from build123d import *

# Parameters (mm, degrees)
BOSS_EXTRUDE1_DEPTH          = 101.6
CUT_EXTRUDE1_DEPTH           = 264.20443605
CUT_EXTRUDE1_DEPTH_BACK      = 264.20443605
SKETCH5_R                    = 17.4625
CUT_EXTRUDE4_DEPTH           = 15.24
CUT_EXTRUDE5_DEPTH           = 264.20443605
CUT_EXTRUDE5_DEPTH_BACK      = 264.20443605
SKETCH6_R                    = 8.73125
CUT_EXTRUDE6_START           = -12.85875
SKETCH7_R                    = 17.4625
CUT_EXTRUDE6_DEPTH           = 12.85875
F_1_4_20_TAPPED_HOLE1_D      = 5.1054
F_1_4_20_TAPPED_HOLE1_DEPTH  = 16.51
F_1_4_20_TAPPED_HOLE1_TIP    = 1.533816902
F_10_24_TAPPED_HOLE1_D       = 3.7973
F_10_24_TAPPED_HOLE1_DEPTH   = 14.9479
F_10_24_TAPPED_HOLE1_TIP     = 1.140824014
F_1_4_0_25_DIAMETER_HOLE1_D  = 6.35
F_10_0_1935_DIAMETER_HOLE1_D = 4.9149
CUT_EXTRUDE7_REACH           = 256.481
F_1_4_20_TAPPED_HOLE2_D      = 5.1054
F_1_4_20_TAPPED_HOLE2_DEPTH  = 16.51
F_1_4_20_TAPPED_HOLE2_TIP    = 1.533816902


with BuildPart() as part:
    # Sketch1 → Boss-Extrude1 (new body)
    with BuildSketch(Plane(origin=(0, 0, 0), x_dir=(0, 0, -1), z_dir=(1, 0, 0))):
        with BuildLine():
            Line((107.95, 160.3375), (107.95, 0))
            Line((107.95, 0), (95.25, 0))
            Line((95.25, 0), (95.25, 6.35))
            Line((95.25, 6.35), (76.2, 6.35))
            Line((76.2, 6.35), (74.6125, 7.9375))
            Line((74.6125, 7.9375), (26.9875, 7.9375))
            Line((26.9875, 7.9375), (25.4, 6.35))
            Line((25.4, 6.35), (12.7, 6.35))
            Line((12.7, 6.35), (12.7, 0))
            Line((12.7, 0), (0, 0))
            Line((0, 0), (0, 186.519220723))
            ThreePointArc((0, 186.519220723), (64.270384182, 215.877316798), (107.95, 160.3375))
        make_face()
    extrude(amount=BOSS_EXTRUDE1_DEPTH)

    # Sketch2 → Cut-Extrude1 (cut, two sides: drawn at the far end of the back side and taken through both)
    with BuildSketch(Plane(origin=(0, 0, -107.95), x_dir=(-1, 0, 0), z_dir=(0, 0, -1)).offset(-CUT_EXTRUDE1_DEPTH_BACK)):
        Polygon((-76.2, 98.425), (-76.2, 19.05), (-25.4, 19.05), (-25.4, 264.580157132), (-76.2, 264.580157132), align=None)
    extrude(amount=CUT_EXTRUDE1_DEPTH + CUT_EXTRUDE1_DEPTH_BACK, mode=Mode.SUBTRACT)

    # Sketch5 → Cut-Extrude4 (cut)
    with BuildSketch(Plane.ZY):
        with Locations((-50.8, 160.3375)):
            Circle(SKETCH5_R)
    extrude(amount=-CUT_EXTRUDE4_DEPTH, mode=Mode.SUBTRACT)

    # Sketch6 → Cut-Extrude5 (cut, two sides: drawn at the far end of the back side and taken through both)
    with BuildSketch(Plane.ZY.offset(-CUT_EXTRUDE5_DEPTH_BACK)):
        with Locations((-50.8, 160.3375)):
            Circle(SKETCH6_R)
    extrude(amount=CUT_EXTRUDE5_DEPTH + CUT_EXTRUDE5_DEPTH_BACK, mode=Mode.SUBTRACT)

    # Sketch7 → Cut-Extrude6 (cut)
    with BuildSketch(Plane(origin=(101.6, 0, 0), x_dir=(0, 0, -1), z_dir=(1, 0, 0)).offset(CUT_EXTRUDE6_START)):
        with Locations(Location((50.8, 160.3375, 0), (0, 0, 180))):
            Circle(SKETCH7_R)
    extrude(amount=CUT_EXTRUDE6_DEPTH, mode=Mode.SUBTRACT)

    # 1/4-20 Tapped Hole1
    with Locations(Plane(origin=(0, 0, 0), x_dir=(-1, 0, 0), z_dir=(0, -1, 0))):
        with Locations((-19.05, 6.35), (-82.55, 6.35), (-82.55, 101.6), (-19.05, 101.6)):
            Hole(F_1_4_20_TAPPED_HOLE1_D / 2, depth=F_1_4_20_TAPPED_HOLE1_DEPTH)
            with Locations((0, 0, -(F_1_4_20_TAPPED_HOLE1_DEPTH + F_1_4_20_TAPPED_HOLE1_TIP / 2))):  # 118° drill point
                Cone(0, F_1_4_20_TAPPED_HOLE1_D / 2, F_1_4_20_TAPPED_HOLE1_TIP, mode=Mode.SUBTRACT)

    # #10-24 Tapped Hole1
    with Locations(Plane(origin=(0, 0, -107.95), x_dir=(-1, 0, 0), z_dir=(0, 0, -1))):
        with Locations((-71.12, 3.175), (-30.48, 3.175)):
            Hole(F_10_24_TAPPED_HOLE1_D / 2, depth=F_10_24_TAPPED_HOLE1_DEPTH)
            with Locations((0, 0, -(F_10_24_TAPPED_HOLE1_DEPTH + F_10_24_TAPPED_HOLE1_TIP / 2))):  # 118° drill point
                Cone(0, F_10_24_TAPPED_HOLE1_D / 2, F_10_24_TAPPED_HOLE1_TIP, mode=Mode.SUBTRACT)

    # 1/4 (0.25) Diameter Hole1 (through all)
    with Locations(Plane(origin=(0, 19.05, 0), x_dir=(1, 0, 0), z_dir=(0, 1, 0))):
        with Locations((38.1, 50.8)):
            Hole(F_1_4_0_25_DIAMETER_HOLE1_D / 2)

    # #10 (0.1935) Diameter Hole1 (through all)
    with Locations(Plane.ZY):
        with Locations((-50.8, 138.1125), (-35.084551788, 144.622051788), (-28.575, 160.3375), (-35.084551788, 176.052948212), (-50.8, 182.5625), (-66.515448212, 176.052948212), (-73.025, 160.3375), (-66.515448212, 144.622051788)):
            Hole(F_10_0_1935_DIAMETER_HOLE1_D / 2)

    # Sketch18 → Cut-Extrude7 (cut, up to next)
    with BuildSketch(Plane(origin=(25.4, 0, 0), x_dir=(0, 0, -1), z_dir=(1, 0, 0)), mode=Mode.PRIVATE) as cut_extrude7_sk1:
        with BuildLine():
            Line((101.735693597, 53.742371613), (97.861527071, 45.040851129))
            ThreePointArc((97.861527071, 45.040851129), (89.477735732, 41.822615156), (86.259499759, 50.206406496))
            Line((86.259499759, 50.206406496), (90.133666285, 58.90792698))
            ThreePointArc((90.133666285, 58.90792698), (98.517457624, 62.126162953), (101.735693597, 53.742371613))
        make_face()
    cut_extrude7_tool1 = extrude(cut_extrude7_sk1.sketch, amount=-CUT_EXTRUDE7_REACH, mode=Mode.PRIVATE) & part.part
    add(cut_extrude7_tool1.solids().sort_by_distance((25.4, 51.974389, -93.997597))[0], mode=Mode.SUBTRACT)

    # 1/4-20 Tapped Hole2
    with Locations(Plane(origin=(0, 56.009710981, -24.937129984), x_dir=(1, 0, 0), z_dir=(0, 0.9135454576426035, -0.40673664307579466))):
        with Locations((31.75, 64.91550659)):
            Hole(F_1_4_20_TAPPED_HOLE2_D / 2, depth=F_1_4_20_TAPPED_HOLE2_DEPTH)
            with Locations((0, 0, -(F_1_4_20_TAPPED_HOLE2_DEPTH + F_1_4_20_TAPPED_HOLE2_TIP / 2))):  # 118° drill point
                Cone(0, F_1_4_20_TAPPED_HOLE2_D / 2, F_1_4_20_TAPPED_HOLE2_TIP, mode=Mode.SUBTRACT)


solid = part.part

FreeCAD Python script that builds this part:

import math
import FreeCAD as App
import Part
import Sketcher
Q = App.Units.Quantity

doc = App.newDocument("Part")
params = doc.addObject("Spreadsheet::Sheet", "Params")
for row, (alias, value) in enumerate([
    ("sketch1_radius", "2.25 in"),
    ("sketch1_height", "0.5 in"),
    ("sketch1_width", "0.25 in"),
    ("sketch1_width2", "6.3125 in"),
    ("pad1_length", "4 in"),
    ("sketch2_width", "2 in"),
    ("sketch3_diameter", "1.375 in"),
    ("pocket2_length", "0.6 in"),
    ("sketch4_diameter", "0.6875 in"),
    ("sketch5_diameter", "1.375 in"),
    ("pocket4_length", "12.85875 mm"),
    ("sketch6_diameter", "0.201 in"),
    ("hole_diameter", "0.201 in"),
    ("hole_depth", "0.65 in"),
    ("hole2_diameter", "0.1495 in"),
    ("hole2_depth", "0.5885 in"),
    ("sketch8_diameter", "0.25 in"),
    ("hole3_diameter", "0.25 in"),
    ("hole4_diameter", "0.1935 in"),
    ("sketch10_radius", "0.25 in"),
    ("sketch10_length", "0.375 in"),
    ("sketch11_diameter", "0.201 in"),
    ("hole5_diameter", "0.201 in"),
    ("hole5_depth", "0.65 in"),
], start=1):
    params.set(f"A{row}", alias)
    params.set(f"B{row}", "=" + value)
    params.setAlias(f"B{row}", alias)

body = doc.addObject("PartDesign::Body", "Body")

sketch1 = body.newObject("Sketcher::SketchObject", "Sketch")
sketch1.AttachmentSupport = (doc.getObject("YZ_Plane"), [""])
sketch1.MapMode = "FlatFace"
sketch1.addGeometry([
    Part.LineSegment(App.Vector(0, -108, 0), App.Vector(160.3, -108, 0)),
    Part.ArcOfCircle(Part.Circle(App.Vector(160.3, -50.8, 0), App.Vector(0, 0, 1), 57.1), math.radians(-90), math.radians(63)),
    Part.LineSegment(App.Vector(186.5, 0, 0), App.Vector(0, 0, 0)),
    Part.LineSegment(App.Vector(0, 0, 0), App.Vector(0, -12.7, 0)),
    Part.LineSegment(App.Vector(0, -12.7, 0), App.Vector(6.3, -12.7, 0)),
    Part.LineSegment(App.Vector(6.3, -12.7, 0), App.Vector(6.3, -25.4, 0)),
    Part.LineSegment(App.Vector(6.3, -25.4, 0), App.Vector(7.9, -27, 0)),
    Part.LineSegment(App.Vector(7.9, -27, 0), App.Vector(7.9, -74.6, 0)),
    Part.LineSegment(App.Vector(7.9, -74.6, 0), App.Vector(6.3, -76.2, 0)),
    Part.LineSegment(App.Vector(6.3, -76.2, 0), App.Vector(6.3, -95.2, 0)),
    Part.LineSegment(App.Vector(6.3, -95.2, 0), App.Vector(0, -95.2, 0)),
    Part.LineSegment(App.Vector(0, -95.2, 0), App.Vector(0, -108, 0)),
], False)
sketch1.addConstraint([
    Sketcher.Constraint("Tangent", 0, 2, 1, 1),
    Sketcher.Constraint("Coincident", 1, 2, 2, 1),
    Sketcher.Constraint("Coincident", 2, 2, 3, 1),
    Sketcher.Constraint("Coincident", 3, 2, 4, 1),
    Sketcher.Constraint("Coincident", 4, 2, 5, 1),
    Sketcher.Constraint("Coincident", 5, 2, 6, 1),
    Sketcher.Constraint("Coincident", 6, 2, 7, 1),
    Sketcher.Constraint("Coincident", 7, 2, 8, 1),
    Sketcher.Constraint("Coincident", 8, 2, 9, 1),
    Sketcher.Constraint("Coincident", 9, 2, 10, 1),
    Sketcher.Constraint("Coincident", 10, 2, 11, 1),
    Sketcher.Constraint("Coincident", 11, 2, 0, 1),
    Sketcher.Constraint("Horizontal", 0),
    Sketcher.Constraint("Horizontal", 2),
    Sketcher.Constraint("Vertical", 3),
    Sketcher.Constraint("Horizontal", 4),
    Sketcher.Constraint("Vertical", 5),
    Sketcher.Constraint("Vertical", 7),
    Sketcher.Constraint("Vertical", 9),
    Sketcher.Constraint("Horizontal", 10),
    Sketcher.Constraint("Vertical", 11),
    Sketcher.Constraint("Coincident", 2, 2, -1, 1),
    Sketcher.Constraint("PointOnObject", 10, 2, -2),
    Sketcher.Constraint("Perpendicular", 6, 8),
    Sketcher.Constraint("Vertical", 5, 2, 8, 2),
    Sketcher.Constraint("Equal", 3, 5),
    Sketcher.Constraint("Equal", 5, 11),
    Sketcher.Constraint("Equal", 6, 8),
    Sketcher.Constraint("Radius", 1, Q("2.25 in")),
    Sketcher.Constraint("DistanceY", 3, 2, 3, 1, Q("0.5 in")),
    Sketcher.Constraint("DistanceY", 1, 3, -1, 1, Q("2 in")),
    Sketcher.Constraint("DistanceY", 8, 2, -1, 1, Q("3 in")),
    Sketcher.Constraint("DistanceX", 6, 2, 1, 3, Q("6 in")),
    Sketcher.Constraint("DistanceX", 4, 1, 4, 2, Q("0.25 in")),
    Sketcher.Constraint("DistanceX", 0, 1, 0, 2, Q("6.3125 in")),
])
sketch1.setExpression("Constraints[28]", "Params.sketch1_radius")
sketch1.setExpression("Constraints[29]", "Params.sketch1_height")
sketch1.setExpression("Constraints[33]", "Params.sketch1_width")
sketch1.setExpression("Constraints[34]", "Params.sketch1_width2")
pad1 = body.newObject("PartDesign::Pad", "Pad")
pad1.Profile = sketch1
pad1.setExpression("Length", "Params.pad1_length")

sketch2 = body.newObject("Sketcher::SketchObject", "Sketch001")
sketch2.AttachmentSupport = (doc.getObject("XY_Plane"), [""])
sketch2.MapMode = "FlatFace"
sketch2.AttachmentOffset = App.Placement(App.Vector(0, 0, -4.25 * 25.4), App.Rotation())
sketch2.addGeometry([
    Part.LineSegment(App.Vector(76, 19, 0), App.Vector(25, 19, 0)),
    Part.LineSegment(App.Vector(25, 19, 0), App.Vector(25, 265, 0)),
    Part.LineSegment(App.Vector(25, 265, 0), App.Vector(76, 265, 0)),
    Part.LineSegment(App.Vector(76, 265, 0), App.Vector(76, 19, 0)),
], False)
sketch2.addConstraint([
    Sketcher.Constraint("Coincident", 0, 2, 1, 1),
    Sketcher.Constraint("Coincident", 1, 2, 2, 1),
    Sketcher.Constraint("Coincident", 2, 2, 3, 1),
    Sketcher.Constraint("Coincident", 3, 2, 0, 1),
    Sketcher.Constraint("Horizontal", 0),
    Sketcher.Constraint("Vertical", 1),
    Sketcher.Constraint("Horizontal", 2),
    Sketcher.Constraint("Vertical", 3),
    Sketcher.Constraint("DistanceX", 0, 2, 0, 1, Q("2 in")),
    Sketcher.Constraint("DistanceX", -1, 1, 0, 2, Q("1 in")),
    Sketcher.Constraint("DistanceY", -1, 1, 0, 2, Q("0.75 in")),
    Sketcher.Constraint("DistanceY", 1, 1, 1, 2, Q("245.530157 mm")),
])
sketch2.setExpression("Constraints[8]", "Params.sketch2_width")
pocket1 = body.newObject("PartDesign::Pocket", "Pocket")
pocket1.Profile = sketch2
pocket1.Type = "ThroughAll"
pocket1.Midplane = True

sketch3 = body.newObject("Sketcher::SketchObject", "Sketch002")
sketch3.AttachmentSupport = (doc.getObject("YZ_Plane"), [""])
sketch3.MapMode = "FlatFace"
sketch3.addGeometry(Part.Circle(App.Vector(160, -51, 0), App.Vector(0, 0, 1), 17), False)
sketch3.addConstraint([
    Sketcher.Constraint("Diameter", 0, Q("1.375 in")),
    Sketcher.Constraint("DistanceY", 0, 3, -1, 1, Q("2 in")),
    Sketcher.Constraint("DistanceX", -1, 1, 0, 3, Q("6.3125 in")),
])
sketch3.setExpression("Constraints[0]", "Params.sketch3_diameter")
pocket2 = body.newObject("PartDesign::Pocket", "Pocket001")
pocket2.Profile = sketch3
pocket2.setExpression("Length", "Params.pocket2_length")
pocket2.Reversed = True

sketch4 = body.newObject("Sketcher::SketchObject", "Sketch003")
sketch4.AttachmentSupport = (doc.getObject("YZ_Plane"), [""])
sketch4.MapMode = "FlatFace"
sketch4.addGeometry(Part.Circle(App.Vector(160, -51, 0), App.Vector(0, 0, 1), 9), False)
sketch4.addConstraint([
    Sketcher.Constraint("Diameter", 0, Q("0.6875 in")),
    Sketcher.Constraint("DistanceY", 0, 3, -1, 1, Q("2 in")),
    Sketcher.Constraint("DistanceX", -1, 1, 0, 3, Q("6.3125 in")),
])
sketch4.setExpression("Constraints[0]", "Params.sketch4_diameter")
pocket3 = body.newObject("PartDesign::Pocket", "Pocket002")
pocket3.Profile = sketch4
pocket3.Type = "ThroughAll"
pocket3.Midplane = True

sketch5 = body.newObject("Sketcher::SketchObject", "Sketch004")
sketch5.AttachmentSupport = (doc.getObject("YZ_Plane"), [""])
sketch5.MapMode = "FlatFace"
sketch5.AttachmentOffset = App.Placement(App.Vector(0, 0, 88.74125), App.Rotation())
sketch5.addGeometry(Part.Circle(App.Vector(160, -51, 0), App.Vector(0, 0, 1), 17), False)
sketch5.addConstraint([
    Sketcher.Constraint("Diameter", 0, Q("1.375 in")),
    Sketcher.Constraint("DistanceY", 0, 3, -1, 1, Q("2 in")),
    Sketcher.Constraint("DistanceX", -1, 1, 0, 3, Q("6.3125 in")),
])
sketch5.setExpression("Constraints[0]", "Params.sketch5_diameter")
pocket4 = body.newObject("PartDesign::Pocket", "Pocket003")
pocket4.Profile = sketch5
pocket4.setExpression("Length", "Params.pocket4_length")
pocket4.Reversed = True

sketch6 = body.newObject("Sketcher::SketchObject", "Sketch005")
sketch6.AttachmentSupport = (doc.getObject("XZ_Plane"), [""])
sketch6.MapMode = "FlatFace"
sketch6.addGeometry([
    Part.Circle(App.Vector(19.1, -6.3, 0), App.Vector(0, 0, 1), 2.6),
    Part.Circle(App.Vector(82.5, -6.3, 0), App.Vector(0, 0, 1), 2.6),
    Part.Circle(App.Vector(82.5, -101.6, 0), App.Vector(0, 0, 1), 2.6),
    Part.Circle(App.Vector(19.1, -101.6, 0), App.Vector(0, 0, 1), 2.6),
], False)
sketch6.addConstraint([
    Sketcher.Constraint("Equal", 0, 1),
    Sketcher.Constraint("Equal", 1, 2),
    Sketcher.Constraint("Equal", 2, 3),
    Sketcher.Constraint("Horizontal", 0, 3, 1, 3),
    Sketcher.Constraint("Horizontal", 2, 3, 3, 3),
    Sketcher.Constraint("Vertical", 1, 3, 2, 3),
    Sketcher.Constraint("Vertical", 0, 3, 3, 3),
    Sketcher.Constraint("Diameter", 0, Q("0.201 in")),
    Sketcher.Constraint("DistanceY", 2, 3, -1, 1, Q("4 in")),
    Sketcher.Constraint("DistanceX", 0, 3, 1, 3, Q("2.5 in")),
    Sketcher.Constraint("DistanceX", -1, 1, 0, 3, Q("0.75 in")),
    Sketcher.Constraint("DistanceY", 0, 3, -1, 1, Q("0.25 in")),
])
sketch6.setExpression("Constraints[7]", "Params.sketch6_diameter")
doc.recompute()
hole = body.newObject("PartDesign::Hole", "Hole")
hole.Profile = sketch6
hole.ThreadType = "None"
hole.setExpression("Diameter", "Params.hole_diameter")
hole.DepthType = "Dimension"
hole.setExpression("Depth", "Params.hole_depth")
hole.DrillPoint = "Angled"
hole.DrillPointAngle = 118

sketch7 = body.newObject("Sketcher::SketchObject", "Sketch006")
sketch7.AttachmentSupport = (doc.getObject("XY_Plane"), [""])
sketch7.MapMode = "FlatFace"
sketch7.AttachmentOffset = App.Placement(App.Vector(0, 0, -4.25 * 25.4), App.Rotation())
sketch7.addGeometry([
    Part.Circle(App.Vector(71.1, 3.2, 0), App.Vector(0, 0, 1), 1.9),
    Part.Circle(App.Vector(30.5, 3.2, 0), App.Vector(0, 0, 1), 1.9),
], False)
sketch7.addConstraint([
    Sketcher.Constraint("Equal", 0, 1),
    Sketcher.Constraint("Horizontal", 0, 3, 1, 3),
    Sketcher.Constraint("Diameter", 0, Q("0.1495 in")),
    Sketcher.Constraint("DistanceX", -1, 1, 0, 3, Q("2.8 in")),
    Sketcher.Constraint("DistanceX", -1, 1, 1, 3, Q("1.2 in")),
    Sketcher.Constraint("DistanceY", -1, 1, 0, 3, Q("0.125 in")),
])
doc.recompute()
hole2 = body.newObject("PartDesign::Hole", "Hole001")
hole2.Profile = sketch7
hole2.ThreadType = "None"
hole2.setExpression("Diameter", "Params.hole2_diameter")
hole2.DepthType = "Dimension"
hole2.setExpression("Depth", "Params.hole2_depth")
hole2.DrillPoint = "Angled"
hole2.DrillPointAngle = 118
hole2.Reversed = True

sketch8 = body.newObject("Sketcher::SketchObject", "Sketch007")
sketch8.AttachmentSupport = (doc.getObject("XZ_Plane"), [""])
sketch8.MapMode = "FlatFace"
sketch8.AttachmentOffset = App.Placement(App.Vector(0, 0, -0.75 * 25.4), App.Rotation())
sketch8.addGeometry(Part.Circle(App.Vector(38.1, -50.8, 0), App.Vector(0, 0, 1), 3.2), False)
sketch8.addConstraint([
    Sketcher.Constraint("Diameter", 0, Q("0.25 in")),
    Sketcher.Constraint("DistanceY", 0, 3, -1, 1, Q("2 in")),
    Sketcher.Constraint("DistanceX", -1, 1, 0, 3, Q("1.5 in")),
])
sketch8.setExpression("Constraints[0]", "Params.sketch8_diameter")
doc.recompute()
hole3 = body.newObject("PartDesign::Hole", "Hole002")
hole3.Profile = sketch8
hole3.ThreadType = "None"
hole3.setExpression("Diameter", "Params.hole3_diameter")
hole3.DepthType = "ThroughAll"
hole3.Reversed = True

sketch9 = body.newObject("Sketcher::SketchObject", "Sketch008")
sketch9.AttachmentSupport = (doc.getObject("YZ_Plane"), [""])
sketch9.MapMode = "FlatFace"
sketch9.addGeometry([
    Part.Circle(App.Vector(138.1, -50.8, 0), App.Vector(0, 0, 1), 2.5),
    Part.Circle(App.Vector(144.6, -35.1, 0), App.Vector(0, 0, 1), 2.5),
    Part.Circle(App.Vector(160.3, -28.6, 0), App.Vector(0, 0, 1), 2.5),
    Part.Circle(App.Vector(176.1, -35.1, 0), App.Vector(0, 0, 1), 2.5),
    Part.Circle(App.Vector(182.6, -50.8, 0), App.Vector(0, 0, 1), 2.5),
    Part.Circle(App.Vector(176.1, -66.5, 0), App.Vector(0, 0, 1), 2.5),
    Part.Circle(App.Vector(160.3, -73, 0), App.Vector(0, 0, 1), 2.5),
    Part.Circle(App.Vector(144.6, -66.5, 0), App.Vector(0, 0, 1), 2.5),
], False)
sketch9.addConstraint([
    Sketcher.Constraint("Equal", 0, 1),
    Sketcher.Constraint("Equal", 1, 2),
    Sketcher.Constraint("Equal", 2, 3),
    Sketcher.Constraint("Equal", 3, 4),
    Sketcher.Constraint("Equal", 4, 5),
    Sketcher.Constraint("Equal", 5, 6),
    Sketcher.Constraint("Equal", 6, 7),
    Sketcher.Constraint("Horizontal", 1, 3, 3, 3),
    Sketcher.Constraint("Horizontal", 0, 3, 4, 3),
    Sketcher.Constraint("Horizontal", 5, 3, 7, 3),
    Sketcher.Constraint("Vertical", 3, 3, 5, 3),
    Sketcher.Constraint("Vertical", 2, 3, 6, 3),
    Sketcher.Constraint("Vertical", 1, 3, 7, 3),
    Sketcher.Constraint("DistanceY", 0, 3, -1, 1, Q("2 in")),
    Sketcher.Constraint("Diameter", 0, Q("0.1935 in")),
    Sketcher.Constraint("DistanceX", 0, 3, 4, 3, Q("1.75 in")),
    Sketcher.Constraint("DistanceX", -1, 1, 0, 3, Q("5.4375 in")),
    Sketcher.Constraint("DistanceX", -1, 1, 2, 3, Q("6.3125 in")),
    Sketcher.Constraint("DistanceY", 2, 3, -1, 1, Q("1.125 in")),
    Sketcher.Constraint("DistanceY", 6, 3, -1, 1, Q("2.875 in")),
    Sketcher.Constraint("DistanceX", -1, 1, 1, 3, Q("144.622052 mm")),
    Sketcher.Constraint("DistanceY", 1, 3, -1, 1, Q("35.084552 mm")),
    Sketcher.Constraint("DistanceX", -1, 1, 3, 3, Q("176.052948 mm")),
    Sketcher.Constraint("DistanceY", 5, 3, -1, 1, Q("66.515448 mm")),
])
doc.recompute()
hole4 = body.newObject("PartDesign::Hole", "Hole003")
hole4.Profile = sketch9
hole4.ThreadType = "None"
hole4.setExpression("Diameter", "Params.hole4_diameter")
hole4.DepthType = "ThroughAll"
hole4.Reversed = True

sketch10 = body.newObject("Sketcher::SketchObject", "Sketch009")
sketch10.AttachmentSupport = (doc.getObject("YZ_Plane"), [""])
sketch10.MapMode = "FlatFace"
sketch10.AttachmentOffset = App.Placement(App.Vector(0, 0, 1 * 25.4), App.Rotation())
sketch10.addGeometry([
    Part.LineSegment(App.Vector(45, -98, 0), App.Vector(54, -102, 0)),
    Part.ArcOfCircle(Part.Circle(App.Vector(56, -96, 0), App.Vector(0, 0, 1), 6), math.radians(-114), math.radians(66)),
    Part.LineSegment(App.Vector(59, -90, 0), App.Vector(50, -86, 0)),
    Part.ArcOfCircle(Part.Circle(App.Vector(48, -92, 0), App.Vector(0, 0, 1), 6), math.radians(66), math.radians(246)),
], False)
sketch10.addConstraint([
    Sketcher.Constraint("Tangent", 0, 2, 1, 1),
    Sketcher.Constraint("Tangent", 1, 2, 2, 1),
    Sketcher.Constraint("Tangent", 2, 2, 3, 1),
    Sketcher.Constraint("Tangent", 3, 2, 0, 1),
    Sketcher.Constraint("Equal", 1, 3),
    Sketcher.Constraint("Radius", 1, Q("0.25 in")),
    Sketcher.Constraint("Angle", 0, Q("-24 deg")),
    Sketcher.Constraint("Distance", 0, Q("0.375 in")),
    Sketcher.Constraint("DistanceY", 2, 2, -1, 1, Q("86.2595 mm")),
    Sketcher.Constraint("DistanceX", -1, 1, 1, 3, Q("56.325149 mm")),
])
sketch10.setExpression("Constraints[5]", "Params.sketch10_radius")
sketch10.setExpression("Constraints[7]", "Params.sketch10_length")
pocket5 = body.newObject("PartDesign::Pocket", "Pocket004")
pocket5.Profile = sketch10
pocket5.Type = "UpToFirst"

sketch11 = body.newObject("Sketcher::SketchObject", "Sketch010")
sketch11.Placement = App.Placement(App.Vector(0, 56.009711, -24.93713), App.Rotation(App.Vector(1, 0, 0), App.Vector(0, -0.406736643, -0.913545458), App.Vector(0, 0.913545458, -0.406736643), "ZXY"))
sketch11.addGeometry(Part.Circle(App.Vector(31.8, 64.9, 0), App.Vector(0, 0, 1), 2.6), False)
sketch11.addConstraint([
    Sketcher.Constraint("Diameter", 0, Q("0.201 in")),
    Sketcher.Constraint("DistanceX", -1, 1, 0, 3, Q("1.25 in")),
    Sketcher.Constraint("DistanceY", -1, 1, 0, 3, Q("64.915507 mm")),
])
sketch11.setExpression("Constraints[0]", "Params.sketch11_diameter")
doc.recompute()
hole5 = body.newObject("PartDesign::Hole", "Hole004")
hole5.Profile = sketch11
hole5.ThreadType = "None"
hole5.setExpression("Diameter", "Params.hole5_diameter")
hole5.DepthType = "Dimension"
hole5.setExpression("Depth", "Params.hole5_depth")
hole5.DrillPoint = "Angled"
hole5.DrillPointAngle = 118

doc.recompute()
